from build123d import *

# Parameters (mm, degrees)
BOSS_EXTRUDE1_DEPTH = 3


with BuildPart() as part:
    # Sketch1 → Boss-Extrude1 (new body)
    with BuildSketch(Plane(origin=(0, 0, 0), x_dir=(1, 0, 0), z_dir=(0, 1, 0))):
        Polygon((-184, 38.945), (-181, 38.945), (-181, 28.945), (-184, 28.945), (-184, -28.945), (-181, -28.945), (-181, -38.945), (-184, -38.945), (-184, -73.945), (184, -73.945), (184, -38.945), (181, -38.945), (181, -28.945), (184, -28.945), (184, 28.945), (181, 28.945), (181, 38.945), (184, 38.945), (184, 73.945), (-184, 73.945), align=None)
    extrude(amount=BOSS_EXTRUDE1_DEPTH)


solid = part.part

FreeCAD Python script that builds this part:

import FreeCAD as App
import Part
import Sketcher


def add_polygon(sketch, points):
    """Adds a closed chain of lines whose ends are joined by coincident constraints."""
    first, n = sketch.GeometryCount, len(points)
    for a, b in zip(points, points[1:] + points[:1]):
        sketch.addGeometry(Part.LineSegment(App.Vector(*a, 0), App.Vector(*b, 0)), False)
    for i in range(n):
        sketch.addConstraint(Sketcher.Constraint("Coincident", first + i, 2, first + (i + 1) % n, 1))

doc = App.newDocument("Part")
body = doc.addObject("PartDesign::Body", "Body")

# Sketch on XZ plane
sketch1 = body.newObject("Sketcher::SketchObject", "Sketch")
sketch1.AttachmentSupport = (doc.getObject("XZ_Plane"), [""])
sketch1.MapMode = "FlatFace"
add_polygon(sketch1, [(-184, -38.9), (-181, -38.9), (-181, -28.9), (-184, -28.9), (-184, 28.9), (-181, 28.9), (-181, 38.9), (-184, 38.9), (-184, 73.9), (184, 73.9), (184, 38.9), (181, 38.9), (181, 28.9), (184, 28.9), (184, -28.9), (181, -28.9), (181, -38.9), (184, -38.9), (184, -73.9), (-184, -73.9)])  # lines 0-19
sketch1.addConstraint([
    Sketcher.Constraint("Horizontal", 0),
    Sketcher.Constraint("Vertical", 1),
    Sketcher.Constraint("Horizontal", 2),
    Sketcher.Constraint("Vertical", 3),
    Sketcher.Constraint("Horizontal", 4),
    Sketcher.Constraint("Vertical", 5),
    Sketcher.Constraint("Horizontal", 6),
    Sketcher.Constraint("Vertical", 7),
    Sketcher.Constraint("Horizontal", 8),
    Sketcher.Constraint("Vertical", 9),
    Sketcher.Constraint("Horizontal", 10),
    Sketcher.Constraint("Vertical", 11),
    Sketcher.Constraint("Horizontal", 12),
    Sketcher.Constraint("Vertical", 13),
    Sketcher.Constraint("Horizontal", 14),
    Sketcher.Constraint("Vertical", 15),
    Sketcher.Constraint("Horizontal", 16),
    Sketcher.Constraint("Vertical", 17),
    Sketcher.Constraint("Horizontal", 18),
    Sketcher.Constraint("Vertical", 19),
    Sketcher.Constraint("Symmetric", 0, 2, 10, 2, -1, 1),
    Sketcher.Constraint("Symmetric", 2, 2, 12, 2, -1, 1),
    Sketcher.Constraint("Symmetric", 4, 2, 14, 2, -1, 1),
    Sketcher.Constraint("Symmetric", 6, 2, 16, 2, -1, 1),
    Sketcher.Constraint("Symmetric", 8, 2, 18, 2, -1, 1),
    Sketcher.Constraint("Symmetric", 6, 2, 9, 2, -2),
    Sketcher.Constraint("Symmetric", 4, 2, 11, 2, -2),
    Sketcher.Constraint("Vertical", 3, 2, 6, 2),
    Sketcher.Constraint("DistanceX", 0, 1, 0, 2, 3.0),
    Sketcher.Constraint("DistanceX", 8, 1, 8, 2, 368.0),
    Sketcher.Constraint("DistanceY", 1, 1, 1, 2, 10.0),
    Sketcher.Constraint("DistanceY", 7, 1, 7, 2, 35.0),
    Sketcher.Constraint("DistanceY", 3, 1, 3, 2, 57.89),
])
pad1 = body.newObject("PartDesign::Pad", "Pad")
pad1.Profile = sketch1
pad1.Length = 3
pad1.Reversed = True

doc.recompute()
